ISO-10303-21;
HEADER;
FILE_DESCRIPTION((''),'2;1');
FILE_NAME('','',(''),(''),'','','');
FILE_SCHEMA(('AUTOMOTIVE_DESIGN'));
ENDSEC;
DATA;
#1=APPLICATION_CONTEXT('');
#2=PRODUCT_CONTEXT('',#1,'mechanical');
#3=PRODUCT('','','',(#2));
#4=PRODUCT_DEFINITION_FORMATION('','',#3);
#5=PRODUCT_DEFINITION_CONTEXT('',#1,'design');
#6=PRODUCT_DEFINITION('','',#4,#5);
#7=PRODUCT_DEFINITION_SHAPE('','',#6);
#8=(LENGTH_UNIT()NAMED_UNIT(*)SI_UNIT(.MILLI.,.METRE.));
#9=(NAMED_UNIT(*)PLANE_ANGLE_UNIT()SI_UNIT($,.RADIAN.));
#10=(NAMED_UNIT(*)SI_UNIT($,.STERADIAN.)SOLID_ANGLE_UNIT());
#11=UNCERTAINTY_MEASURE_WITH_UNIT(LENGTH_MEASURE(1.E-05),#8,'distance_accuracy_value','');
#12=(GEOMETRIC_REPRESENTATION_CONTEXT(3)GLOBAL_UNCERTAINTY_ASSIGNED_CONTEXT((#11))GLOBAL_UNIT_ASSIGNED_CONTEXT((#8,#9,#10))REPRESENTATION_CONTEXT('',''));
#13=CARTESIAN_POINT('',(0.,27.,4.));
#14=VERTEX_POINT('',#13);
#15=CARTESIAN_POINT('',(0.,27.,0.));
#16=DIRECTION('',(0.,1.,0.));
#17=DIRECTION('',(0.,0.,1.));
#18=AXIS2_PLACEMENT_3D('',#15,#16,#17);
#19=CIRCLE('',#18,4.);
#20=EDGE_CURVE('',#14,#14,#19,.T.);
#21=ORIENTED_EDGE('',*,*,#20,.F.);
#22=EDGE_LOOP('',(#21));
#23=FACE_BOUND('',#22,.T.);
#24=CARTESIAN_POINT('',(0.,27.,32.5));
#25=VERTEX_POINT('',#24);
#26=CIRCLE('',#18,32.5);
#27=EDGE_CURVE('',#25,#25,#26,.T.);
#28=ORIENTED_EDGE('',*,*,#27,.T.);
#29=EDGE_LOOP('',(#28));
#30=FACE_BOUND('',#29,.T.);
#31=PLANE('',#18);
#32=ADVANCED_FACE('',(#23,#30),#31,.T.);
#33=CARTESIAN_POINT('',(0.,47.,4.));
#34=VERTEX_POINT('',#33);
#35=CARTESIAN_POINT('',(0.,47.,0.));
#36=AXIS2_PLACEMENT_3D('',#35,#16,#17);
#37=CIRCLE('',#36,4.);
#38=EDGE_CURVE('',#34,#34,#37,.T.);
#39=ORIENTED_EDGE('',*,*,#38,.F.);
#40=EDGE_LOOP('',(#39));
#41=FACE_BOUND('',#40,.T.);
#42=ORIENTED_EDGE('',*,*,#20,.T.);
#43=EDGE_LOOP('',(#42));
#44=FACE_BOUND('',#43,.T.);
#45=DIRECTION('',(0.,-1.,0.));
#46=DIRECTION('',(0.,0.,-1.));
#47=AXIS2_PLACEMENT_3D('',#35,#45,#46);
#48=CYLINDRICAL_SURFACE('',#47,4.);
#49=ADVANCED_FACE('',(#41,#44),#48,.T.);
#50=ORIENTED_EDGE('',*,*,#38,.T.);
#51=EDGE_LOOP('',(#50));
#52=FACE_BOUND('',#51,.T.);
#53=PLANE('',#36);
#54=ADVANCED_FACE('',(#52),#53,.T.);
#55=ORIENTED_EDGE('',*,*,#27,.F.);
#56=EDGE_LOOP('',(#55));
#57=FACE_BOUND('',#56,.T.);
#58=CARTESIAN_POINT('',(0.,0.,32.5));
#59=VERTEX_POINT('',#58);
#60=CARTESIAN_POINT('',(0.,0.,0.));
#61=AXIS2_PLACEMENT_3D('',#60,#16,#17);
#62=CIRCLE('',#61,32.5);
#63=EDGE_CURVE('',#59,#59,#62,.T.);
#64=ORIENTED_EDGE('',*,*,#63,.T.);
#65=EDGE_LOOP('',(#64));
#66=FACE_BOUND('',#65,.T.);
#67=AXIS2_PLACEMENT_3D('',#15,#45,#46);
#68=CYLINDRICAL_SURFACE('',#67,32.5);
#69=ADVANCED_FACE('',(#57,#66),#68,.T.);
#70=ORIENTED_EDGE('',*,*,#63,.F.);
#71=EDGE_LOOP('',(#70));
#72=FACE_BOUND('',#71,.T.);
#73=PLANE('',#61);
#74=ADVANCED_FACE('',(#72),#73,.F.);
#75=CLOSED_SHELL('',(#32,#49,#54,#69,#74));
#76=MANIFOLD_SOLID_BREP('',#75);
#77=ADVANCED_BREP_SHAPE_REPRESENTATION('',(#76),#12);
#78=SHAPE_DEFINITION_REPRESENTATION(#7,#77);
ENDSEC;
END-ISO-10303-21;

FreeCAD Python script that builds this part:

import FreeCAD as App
import Part
import Sketcher
from FreeCAD import Vector
Q = App.Units.Quantity

doc = App.newDocument("Part")
body = doc.addObject("PartDesign::Body", "Body")

# Sketch on XZ plane
sketch1 = body.newObject("Sketcher::SketchObject", "Sketch")
sketch1.AttachmentSupport = (doc.getObject("XZ_Plane"), [""])
sketch1.MapMode = "FlatFace"
sketch1.addGeometry(Part.Circle(Vector(0, 0, 0), Vector(0, 0, 1), 32), False)
sketch1.addConstraint([
    Sketcher.Constraint("Coincident", 0, 3, -1, 1),
    Sketcher.Constraint("Diameter", 0, Q("65 mm")),
])
pad1 = body.newObject("PartDesign::Pad", "Pad")
pad1.Profile = sketch1
pad1.Length = 27
pad1.Reversed = True

# Sketch on XZ plane
sketch2 = body.newObject("Sketcher::SketchObject", "Sketch001")
sketch2.AttachmentSupport = (doc.getObject("XZ_Plane"), [""])
sketch2.MapMode = "FlatFace"
sketch2.AttachmentOffset = App.Placement(Vector(0, 0, -27), App.Rotation())
sketch2.addGeometry(Part.Circle(Vector(0, 0, 0), Vector(0, 0, 1), 4), False)
sketch2.addConstraint([
    Sketcher.Constraint("Coincident", 0, 3, -1, 1),
    Sketcher.Constraint("Diameter", 0, Q("8 mm")),
])
pad2 = body.newObject("PartDesign::Pad", "Pad001")
pad2.Profile = sketch2
pad2.Length = 20
pad2.Reversed = True

doc.recompute()
